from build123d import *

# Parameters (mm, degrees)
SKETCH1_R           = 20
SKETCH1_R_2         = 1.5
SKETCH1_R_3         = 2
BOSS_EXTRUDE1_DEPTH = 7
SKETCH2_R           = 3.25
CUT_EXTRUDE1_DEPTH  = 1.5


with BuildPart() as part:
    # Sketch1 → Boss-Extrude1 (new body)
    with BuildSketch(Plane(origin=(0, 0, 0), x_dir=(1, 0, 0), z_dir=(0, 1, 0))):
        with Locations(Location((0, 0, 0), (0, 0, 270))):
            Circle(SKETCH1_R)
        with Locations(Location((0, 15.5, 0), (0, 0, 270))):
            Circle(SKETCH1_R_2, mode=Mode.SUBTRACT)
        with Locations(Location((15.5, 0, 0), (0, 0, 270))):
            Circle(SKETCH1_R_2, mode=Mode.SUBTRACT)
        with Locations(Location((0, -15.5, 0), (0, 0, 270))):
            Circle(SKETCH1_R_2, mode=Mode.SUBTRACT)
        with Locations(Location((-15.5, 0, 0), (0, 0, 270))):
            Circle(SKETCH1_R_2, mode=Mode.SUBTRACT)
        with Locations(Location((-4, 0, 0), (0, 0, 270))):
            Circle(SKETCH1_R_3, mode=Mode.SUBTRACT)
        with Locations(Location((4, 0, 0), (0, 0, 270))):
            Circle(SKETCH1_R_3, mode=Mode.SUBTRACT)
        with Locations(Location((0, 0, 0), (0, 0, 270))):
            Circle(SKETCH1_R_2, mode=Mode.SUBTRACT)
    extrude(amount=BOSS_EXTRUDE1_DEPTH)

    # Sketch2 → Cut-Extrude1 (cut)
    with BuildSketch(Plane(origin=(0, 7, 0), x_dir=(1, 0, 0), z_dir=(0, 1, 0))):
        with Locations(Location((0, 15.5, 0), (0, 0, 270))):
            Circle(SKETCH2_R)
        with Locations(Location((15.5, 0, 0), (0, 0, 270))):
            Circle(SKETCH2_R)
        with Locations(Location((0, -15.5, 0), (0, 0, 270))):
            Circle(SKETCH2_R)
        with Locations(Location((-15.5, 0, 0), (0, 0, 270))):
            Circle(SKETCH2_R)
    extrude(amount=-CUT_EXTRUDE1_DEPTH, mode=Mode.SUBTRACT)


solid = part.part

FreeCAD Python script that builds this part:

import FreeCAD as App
import Part
import Sketcher

doc = App.newDocument("Part")
params = doc.addObject("Spreadsheet::Sheet", "Params")
for row, (alias, value) in enumerate([
    ("sketch1_diameter", "40 mm"),
    ("sketch1_diameter2", "3 mm"),
    ("sketch1_diameter3", "4 mm"),
    ("pad1_length", "7 mm"),
    ("sketch2_diameter", "6.5 mm"),
    ("pocket1_length", "1.5 mm"),
], start=1):
    params.set(f"A{row}", alias)
    params.set(f"B{row}", "=" + value)
    params.setAlias(f"B{row}", alias)

body = doc.addObject("PartDesign::Body", "Body")

# Sketch on XZ plane
sketch1 = body.newObject("Sketcher::SketchObject", "Sketch")
sketch1.AttachmentSupport = (doc.getObject("XZ_Plane"), [""])
sketch1.MapMode = "FlatFace"
sketch1.addGeometry(Part.Circle(App.Vector(0, 0, 0), App.Vector(0, 0, 1), 20), False)
sketch1.addGeometry(Part.Circle(App.Vector(0, -15.5, 0), App.Vector(0, 0, 1), 1.5), False)
sketch1.addGeometry(Part.Circle(App.Vector(-15.5, 0, 0), App.Vector(0, 0, 1), 1.5), False)
sketch1.addGeometry(Part.Circle(App.Vector(-4, 0, 0), App.Vector(0, 0, 1), 2), False)
sketch1.addGeometry(Part.Circle(App.Vector(15.5, 0, 0), App.Vector(0, 0, 1), 1.5), False)
sketch1.addGeometry(Part.Circle(App.Vector(0, 0, 0), App.Vector(0, 0, 1), 1.5), False)
sketch1.addGeometry(Part.Circle(App.Vector(4, 0, 0), App.Vector(0, 0, 1), 2), False)
sketch1.addGeometry(Part.Circle(App.Vector(0, 15.5, 0), App.Vector(0, 0, 1), 1.5), False)
sketch1.addConstraint(Sketcher.Constraint("Coincident", 0, 3, -1, 1))
sketch1.addConstraint(Sketcher.Constraint("Coincident", 5, 3, -1, 1))
sketch1.addConstraint(Sketcher.Constraint("Equal", 1, 2))
sketch1.addConstraint(Sketcher.Constraint("Equal", 2, 4))
sketch1.addConstraint(Sketcher.Constraint("Equal", 4, 5))
sketch1.addConstraint(Sketcher.Constraint("Equal", 3, 6))
sketch1.addConstraint(Sketcher.Constraint("Equal", 5, 7))
sketch1.addConstraint(Sketcher.Constraint("Symmetric", 2, 3, 4, 3, -1, 1))
sketch1.addConstraint(Sketcher.Constraint("Symmetric", 3, 3, 6, 3, -1, 1))
sketch1.addConstraint(Sketcher.Constraint("Symmetric", 1, 3, 7, 3, -1, 1))
sketch1.addConstraint(Sketcher.Constraint("PointOnObject", 1, 3, -2))
sketch1.addConstraint(Sketcher.Constraint("PointOnObject", 2, 3, -1))
sketch1.addConstraint(Sketcher.Constraint("PointOnObject", 3, 3, -1))
sketch1.addConstraint(Sketcher.Constraint("Diameter", 0, 40.0))
sketch1.addConstraint(Sketcher.Constraint("Diameter", 1, 3.0))
sketch1.addConstraint(Sketcher.Constraint("Diameter", 3, 4.0))
sketch1.addConstraint(Sketcher.Constraint("DistanceX", 3, 3, -1, 1, 4.0))
sketch1.addConstraint(Sketcher.Constraint("DistanceX", 2, 3, 4, 3, 31.0))
sketch1.addConstraint(Sketcher.Constraint("DistanceY", 1, 3, -1, 1, 15.5))
sketch1.setExpression("Constraints[13]", "Params.sketch1_diameter")
sketch1.setExpression("Constraints[14]", "Params.sketch1_diameter2")
sketch1.setExpression("Constraints[15]", "Params.sketch1_diameter3")
pad1 = body.newObject("PartDesign::Pad", "Pad")
pad1.Profile = sketch1
pad1.setExpression("Length", "Params.pad1_length")
pad1.Reversed = True

# Sketch on XZ plane
sketch2 = body.newObject("Sketcher::SketchObject", "Sketch001")
sketch2.AttachmentSupport = (doc.getObject("XZ_Plane"), [""])
sketch2.MapMode = "FlatFace"
sketch2.AttachmentOffset = App.Placement(App.Vector(0, 0, -7), App.Rotation())
sketch2.addGeometry(Part.Circle(App.Vector(0, -15.5, 0), App.Vector(0, 0, 1), 3.2), False)
sketch2.addGeometry(Part.Circle(App.Vector(15.5, 0, 0), App.Vector(0, 0, 1), 3.2), False)
sketch2.addGeometry(Part.Circle(App.Vector(0, 15.5, 0), App.Vector(0, 0, 1), 3.2), False)
sketch2.addGeometry(Part.Circle(App.Vector(-15.5, 0, 0), App.Vector(0, 0, 1), 3.2), False)
sketch2.addConstraint(Sketcher.Constraint("Equal", 0, 1))
sketch2.addConstraint(Sketcher.Constraint("Equal", 1, 2))
sketch2.addConstraint(Sketcher.Constraint("Equal", 2, 3))
sketch2.addConstraint(Sketcher.Constraint("Symmetric", 0, 3, 2, 3, -1, 1))
sketch2.addConstraint(Sketcher.Constraint("Symmetric", 1, 3, 3, 3, -1, 1))
sketch2.addConstraint(Sketcher.Constraint("PointOnObject", 0, 3, -2))
sketch2.addConstraint(Sketcher.Constraint("PointOnObject", 1, 3, -1))
sketch2.addConstraint(Sketcher.Constraint("Diameter", 0, 6.5))
sketch2.addConstraint(Sketcher.Constraint("DistanceY", 0, 3, 2, 3, 31.0))
sketch2.addConstraint(Sketcher.Constraint("DistanceX", 3, 3, 1, 3, 31.0))
sketch2.setExpression("Constraints[7]", "Params.sketch2_diameter")
pocket1 = body.newObject("PartDesign::Pocket", "Pocket")
pocket1.Profile = sketch2
pocket1.setExpression("Length", "Params.pocket1_length")
pocket1.Reversed = True

doc.recompute()
